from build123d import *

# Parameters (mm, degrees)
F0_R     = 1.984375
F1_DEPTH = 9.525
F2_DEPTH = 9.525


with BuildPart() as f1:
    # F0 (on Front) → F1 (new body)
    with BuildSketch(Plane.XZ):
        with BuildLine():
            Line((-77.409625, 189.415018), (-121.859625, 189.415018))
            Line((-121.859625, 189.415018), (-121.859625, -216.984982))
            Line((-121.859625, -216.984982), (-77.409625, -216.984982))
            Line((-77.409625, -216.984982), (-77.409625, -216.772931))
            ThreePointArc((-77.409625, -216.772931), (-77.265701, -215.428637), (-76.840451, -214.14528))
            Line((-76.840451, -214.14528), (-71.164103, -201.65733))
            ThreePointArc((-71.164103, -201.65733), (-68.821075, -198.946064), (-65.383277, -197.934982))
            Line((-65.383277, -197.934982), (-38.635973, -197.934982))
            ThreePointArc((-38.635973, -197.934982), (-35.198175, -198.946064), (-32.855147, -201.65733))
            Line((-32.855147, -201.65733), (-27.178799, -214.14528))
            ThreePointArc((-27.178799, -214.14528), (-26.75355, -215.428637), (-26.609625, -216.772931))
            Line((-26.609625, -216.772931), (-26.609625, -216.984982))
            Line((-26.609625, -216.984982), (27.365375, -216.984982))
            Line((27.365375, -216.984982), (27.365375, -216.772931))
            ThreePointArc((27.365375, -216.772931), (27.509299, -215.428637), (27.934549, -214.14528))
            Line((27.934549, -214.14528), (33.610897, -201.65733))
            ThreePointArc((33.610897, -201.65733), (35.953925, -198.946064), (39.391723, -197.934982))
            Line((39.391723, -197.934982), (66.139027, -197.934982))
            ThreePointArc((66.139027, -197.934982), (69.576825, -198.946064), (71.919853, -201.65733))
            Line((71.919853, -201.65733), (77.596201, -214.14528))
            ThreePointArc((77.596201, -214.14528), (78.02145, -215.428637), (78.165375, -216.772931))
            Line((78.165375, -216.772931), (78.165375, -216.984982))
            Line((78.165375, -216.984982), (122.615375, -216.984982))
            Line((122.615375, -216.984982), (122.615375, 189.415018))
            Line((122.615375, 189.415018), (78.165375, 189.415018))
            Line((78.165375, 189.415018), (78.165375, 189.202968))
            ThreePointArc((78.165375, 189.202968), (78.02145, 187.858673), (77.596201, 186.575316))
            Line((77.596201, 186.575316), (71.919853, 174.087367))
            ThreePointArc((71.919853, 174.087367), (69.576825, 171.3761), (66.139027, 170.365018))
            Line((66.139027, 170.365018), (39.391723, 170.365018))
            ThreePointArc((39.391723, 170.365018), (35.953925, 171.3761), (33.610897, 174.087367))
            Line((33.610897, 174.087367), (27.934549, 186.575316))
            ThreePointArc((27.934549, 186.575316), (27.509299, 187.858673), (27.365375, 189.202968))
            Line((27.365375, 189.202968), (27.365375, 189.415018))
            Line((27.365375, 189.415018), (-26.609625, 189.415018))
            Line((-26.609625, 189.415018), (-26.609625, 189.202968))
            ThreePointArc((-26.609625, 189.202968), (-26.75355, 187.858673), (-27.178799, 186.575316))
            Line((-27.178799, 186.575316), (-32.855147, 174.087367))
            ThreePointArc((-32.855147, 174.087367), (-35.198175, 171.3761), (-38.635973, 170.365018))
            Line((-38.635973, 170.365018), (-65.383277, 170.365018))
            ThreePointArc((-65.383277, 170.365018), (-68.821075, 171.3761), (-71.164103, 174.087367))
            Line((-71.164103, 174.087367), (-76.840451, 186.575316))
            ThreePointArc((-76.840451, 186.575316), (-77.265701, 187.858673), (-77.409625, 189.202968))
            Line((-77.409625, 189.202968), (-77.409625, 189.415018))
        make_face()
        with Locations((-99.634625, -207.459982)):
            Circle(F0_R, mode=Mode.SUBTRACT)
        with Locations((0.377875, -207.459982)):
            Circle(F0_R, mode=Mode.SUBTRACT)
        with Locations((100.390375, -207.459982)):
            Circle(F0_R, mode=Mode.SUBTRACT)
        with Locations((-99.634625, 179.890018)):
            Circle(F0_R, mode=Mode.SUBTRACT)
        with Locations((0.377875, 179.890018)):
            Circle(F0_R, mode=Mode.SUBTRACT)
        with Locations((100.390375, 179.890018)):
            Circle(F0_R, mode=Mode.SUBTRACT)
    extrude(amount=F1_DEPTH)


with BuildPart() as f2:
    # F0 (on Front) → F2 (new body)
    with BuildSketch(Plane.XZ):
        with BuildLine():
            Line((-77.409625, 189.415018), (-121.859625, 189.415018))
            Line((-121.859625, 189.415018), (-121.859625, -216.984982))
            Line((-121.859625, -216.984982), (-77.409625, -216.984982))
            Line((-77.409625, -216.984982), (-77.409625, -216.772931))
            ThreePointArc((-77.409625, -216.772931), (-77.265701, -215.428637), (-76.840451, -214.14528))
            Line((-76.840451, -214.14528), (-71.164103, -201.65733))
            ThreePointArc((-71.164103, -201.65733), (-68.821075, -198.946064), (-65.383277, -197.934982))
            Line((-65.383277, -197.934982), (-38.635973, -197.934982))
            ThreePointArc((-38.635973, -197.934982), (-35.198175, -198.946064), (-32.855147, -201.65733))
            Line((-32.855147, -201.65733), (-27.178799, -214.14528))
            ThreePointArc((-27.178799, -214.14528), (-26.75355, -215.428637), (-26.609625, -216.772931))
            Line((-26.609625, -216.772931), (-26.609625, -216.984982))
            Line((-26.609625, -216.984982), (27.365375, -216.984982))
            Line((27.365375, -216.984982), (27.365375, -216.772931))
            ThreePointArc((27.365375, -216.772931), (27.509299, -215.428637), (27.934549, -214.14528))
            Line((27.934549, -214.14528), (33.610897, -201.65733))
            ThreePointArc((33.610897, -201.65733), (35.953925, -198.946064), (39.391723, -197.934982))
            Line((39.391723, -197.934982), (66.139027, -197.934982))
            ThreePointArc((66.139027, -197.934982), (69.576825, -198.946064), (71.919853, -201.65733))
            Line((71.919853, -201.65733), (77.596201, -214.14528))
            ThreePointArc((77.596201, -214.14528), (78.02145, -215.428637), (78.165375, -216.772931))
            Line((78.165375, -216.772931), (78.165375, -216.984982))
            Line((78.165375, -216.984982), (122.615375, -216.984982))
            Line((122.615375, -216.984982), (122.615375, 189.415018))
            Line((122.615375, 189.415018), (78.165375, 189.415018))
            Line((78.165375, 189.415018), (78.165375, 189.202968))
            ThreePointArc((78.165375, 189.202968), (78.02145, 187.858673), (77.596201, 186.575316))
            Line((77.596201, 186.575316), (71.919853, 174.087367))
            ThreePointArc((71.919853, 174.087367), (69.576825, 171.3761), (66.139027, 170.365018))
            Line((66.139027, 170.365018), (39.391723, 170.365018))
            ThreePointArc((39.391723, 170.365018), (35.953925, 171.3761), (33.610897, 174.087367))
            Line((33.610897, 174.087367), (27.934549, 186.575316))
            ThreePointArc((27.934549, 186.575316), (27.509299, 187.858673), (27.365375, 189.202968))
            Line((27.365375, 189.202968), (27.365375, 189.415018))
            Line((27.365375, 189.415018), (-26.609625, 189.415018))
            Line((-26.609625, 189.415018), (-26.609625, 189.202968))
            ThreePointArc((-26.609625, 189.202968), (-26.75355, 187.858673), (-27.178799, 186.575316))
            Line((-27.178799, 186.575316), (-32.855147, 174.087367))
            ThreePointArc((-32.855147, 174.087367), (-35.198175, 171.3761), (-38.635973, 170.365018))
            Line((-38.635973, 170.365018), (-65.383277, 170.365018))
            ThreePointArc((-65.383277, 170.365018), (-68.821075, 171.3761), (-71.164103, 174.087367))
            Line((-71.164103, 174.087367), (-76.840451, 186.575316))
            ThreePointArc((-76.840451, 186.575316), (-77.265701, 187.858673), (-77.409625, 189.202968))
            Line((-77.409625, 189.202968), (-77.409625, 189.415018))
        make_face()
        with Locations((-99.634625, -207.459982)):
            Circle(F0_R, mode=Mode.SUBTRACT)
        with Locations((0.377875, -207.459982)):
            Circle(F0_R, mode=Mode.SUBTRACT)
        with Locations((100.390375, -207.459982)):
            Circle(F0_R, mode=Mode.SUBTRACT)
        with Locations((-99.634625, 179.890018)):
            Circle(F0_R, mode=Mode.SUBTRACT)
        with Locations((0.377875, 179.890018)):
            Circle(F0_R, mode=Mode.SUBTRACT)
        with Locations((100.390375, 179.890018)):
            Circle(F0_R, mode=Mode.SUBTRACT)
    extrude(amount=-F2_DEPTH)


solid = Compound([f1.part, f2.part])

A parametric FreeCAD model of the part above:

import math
import FreeCAD as App
import Part
import Sketcher

V = App.Vector
Q = App.Units.Quantity

doc = App.newDocument("Part")
body = doc.addObject("PartDesign::Body", "Body")

# Sketch on XZ plane
sketch1 = body.newObject("Sketcher::SketchObject", "Sketch")
sketch1.AttachmentSupport = (doc.getObject("XZ_Plane"), [""])
sketch1.MapMode = "FlatFace"
sketch1.addGeometry(Part.LineSegment(V(-77.409625, 189.415018, 0), V(-121.859625, 189.415018, 0)), False)
sketch1.addGeometry(Part.LineSegment(V(-121.859625, 189.415018, 0), V(-121.859625, -216.984982, 0)), False)
sketch1.addGeometry(Part.LineSegment(V(-121.859625, -216.984982, 0), V(-77.409625, -216.984982, 0)), False)
sketch1.addGeometry(Part.LineSegment(V(-77.409625, -216.984982, 0), V(-77.409625, -216.772931, 0)), False)
sketch1.addGeometry(Part.ArcOfCircle(Part.Circle(V(-71.059646, -216.772927, 0), V(0, 0, 1), 6.349979), math.radians(155.55598), math.radians(180.000039)), False)
sketch1.addGeometry(Part.LineSegment(V(-76.840451, -214.14528, 0), V(-71.164103, -201.65733, 0)), False)
sketch1.addGeometry(Part.ArcOfCircle(Part.Circle(V(-65.383277, -204.284983, 0), V(0, 0, 1), 6.350001), math.radians(90.000002), math.radians(155.556008)), False)
sketch1.addGeometry(Part.LineSegment(V(-65.383277, -197.934982, 0), V(-38.635973, -197.934982, 0)), False)
sketch1.addGeometry(Part.ArcOfCircle(Part.Circle(V(-38.635973, -204.284983, 0), V(0, 0, 1), 6.350001), math.radians(24.443992), math.radians(89.999998)), False)
sketch1.addGeometry(Part.LineSegment(V(-32.855147, -201.65733, 0), V(-27.178799, -214.14528, 0)), False)
sketch1.addGeometry(Part.ArcOfCircle(Part.Circle(V(-32.959646, -216.772936, 0), V(0, 0, 1), 6.350021), math.radians(0.000043), math.radians(24.443938)), False)
sketch1.addGeometry(Part.LineSegment(V(-26.609625, -216.772931, 0), V(-26.609625, -216.984982, 0)), False)
sketch1.addGeometry(Part.LineSegment(V(-26.609625, -216.984982, 0), V(27.365375, -216.984982, 0)), False)
sketch1.addGeometry(Part.LineSegment(V(27.365375, -216.984982, 0), V(27.365375, -216.772931, 0)), False)
sketch1.addGeometry(Part.ArcOfCircle(Part.Circle(V(33.715354, -216.772927, 0), V(0, 0, 1), 6.349979), math.radians(155.55598), math.radians(180.000039)), False)
sketch1.addGeometry(Part.LineSegment(V(27.934549, -214.14528, 0), V(33.610897, -201.65733, 0)), False)
sketch1.addGeometry(Part.ArcOfCircle(Part.Circle(V(39.391723, -204.284983, 0), V(0, 0, 1), 6.350001), math.radians(90.000002), math.radians(155.556008)), False)
sketch1.addGeometry(Part.LineSegment(V(39.391723, -197.934982, 0), V(66.139027, -197.934982, 0)), False)
sketch1.addGeometry(Part.ArcOfCircle(Part.Circle(V(66.139027, -204.284983, 0), V(0, 0, 1), 6.350001), math.radians(24.443992), math.radians(89.999998)), False)
sketch1.addGeometry(Part.LineSegment(V(71.919853, -201.65733, 0), V(77.596201, -214.14528, 0)), False)
sketch1.addGeometry(Part.ArcOfCircle(Part.Circle(V(71.815354, -216.772936, 0), V(0, 0, 1), 6.350021), math.radians(0.000043), math.radians(24.443938)), False)
sketch1.addGeometry(Part.LineSegment(V(78.165375, -216.772931, 0), V(78.165375, -216.984982, 0)), False)
sketch1.addGeometry(Part.LineSegment(V(78.165375, -216.984982, 0), V(122.615375, -216.984982, 0)), False)
sketch1.addGeometry(Part.LineSegment(V(122.615375, -216.984982, 0), V(122.615375, 189.415018, 0)), False)
sketch1.addGeometry(Part.LineSegment(V(122.615375, 189.415018, 0), V(78.165375, 189.415018, 0)), False)
sketch1.addGeometry(Part.LineSegment(V(78.165375, 189.415018, 0), V(78.165375, 189.202968, 0)), False)
sketch1.addGeometry(Part.ArcOfCircle(Part.Circle(V(71.815354, 189.202972, 0), V(0, 0, 1), 6.350021), math.radians(-24.443938), math.radians(-0.000034)), False)
sketch1.addGeometry(Part.LineSegment(V(77.596201, 186.575316, 0), V(71.919853, 174.087367, 0)), False)
sketch1.addGeometry(Part.ArcOfCircle(Part.Circle(V(66.139027, 176.715018, 0), V(0, 0, 1), 6.35), math.radians(-90.000002), math.radians(-24.443975)), False)
sketch1.addGeometry(Part.LineSegment(V(66.139027, 170.365018, 0), V(39.391723, 170.365018, 0)), False)
sketch1.addGeometry(Part.ArcOfCircle(Part.Circle(V(39.391723, 176.715018, 0), V(0, 0, 1), 6.35), math.radians(-155.556025), math.radians(-89.999998)), False)
sketch1.addGeometry(Part.LineSegment(V(33.610897, 174.087367, 0), V(27.934549, 186.575316, 0)), False)
sketch1.addGeometry(Part.ArcOfCircle(Part.Circle(V(33.715354, 189.202963, 0), V(0, 0, 1), 6.349979), math.radians(179.999952), math.radians(204.44402)), False)
sketch1.addGeometry(Part.LineSegment(V(27.365375, 189.202968, 0), V(27.365375, 189.415018, 0)), False)
sketch1.addGeometry(Part.LineSegment(V(27.365375, 189.415018, 0), V(-26.609625, 189.415018, 0)), False)
sketch1.addGeometry(Part.LineSegment(V(-26.609625, 189.415018, 0), V(-26.609625, 189.202968, 0)), False)
sketch1.addGeometry(Part.ArcOfCircle(Part.Circle(V(-32.959646, 189.202972, 0), V(0, 0, 1), 6.350021), math.radians(-24.443938), math.radians(-0.000034)), False)
sketch1.addGeometry(Part.LineSegment(V(-27.178799, 186.575316, 0), V(-32.855147, 174.087367, 0)), False)
sketch1.addGeometry(Part.ArcOfCircle(Part.Circle(V(-38.635973, 176.715018, 0), V(0, 0, 1), 6.35), math.radians(-90.000002), math.radians(-24.443975)), False)
sketch1.addGeometry(Part.LineSegment(V(-38.635973, 170.365018, 0), V(-65.383277, 170.365018, 0)), False)
sketch1.addGeometry(Part.ArcOfCircle(Part.Circle(V(-65.383277, 176.715018, 0), V(0, 0, 1), 6.35), math.radians(-155.556025), math.radians(-89.999998)), False)
sketch1.addGeometry(Part.LineSegment(V(-71.164103, 174.087367, 0), V(-76.840451, 186.575316, 0)), False)
sketch1.addGeometry(Part.ArcOfCircle(Part.Circle(V(-71.059646, 189.202963, 0), V(0, 0, 1), 6.349979), math.radians(179.999952), math.radians(204.44402)), False)
sketch1.addGeometry(Part.LineSegment(V(-77.409625, 189.202968, 0), V(-77.409625, 189.415018, 0)), False)
sketch1.addGeometry(Part.Circle(V(-99.634625, -207.459982, 0), V(0, 0, 1), 1.984375), False)
sketch1.addGeometry(Part.Circle(V(0.377875, -207.459982, 0), V(0, 0, 1), 1.984375), False)
sketch1.addGeometry(Part.Circle(V(100.390375, -207.459982, 0), V(0, 0, 1), 1.984375), False)
sketch1.addGeometry(Part.Circle(V(-99.634625, 179.890018, 0), V(0, 0, 1), 1.984375), False)
sketch1.addGeometry(Part.Circle(V(0.377875, 179.890018, 0), V(0, 0, 1), 1.984375), False)
sketch1.addGeometry(Part.Circle(V(100.390375, 179.890018, 0), V(0, 0, 1), 1.984375), False)
sketch1.addConstraint(Sketcher.Constraint("Coincident", 0, 2, 1, 1))
sketch1.addConstraint(Sketcher.Constraint("Coincident", 1, 2, 2, 1))
sketch1.addConstraint(Sketcher.Constraint("Coincident", 2, 2, 3, 1))
sketch1.addConstraint(Sketcher.Constraint("Coincident", 3, 2, 4, 2))
sketch1.addConstraint(Sketcher.Constraint("Coincident", 4, 1, 5, 1))
sketch1.addConstraint(Sketcher.Constraint("Coincident", 5, 2, 6, 2))
sketch1.addConstraint(Sketcher.Constraint("Coincident", 6, 1, 7, 1))
sketch1.addConstraint(Sketcher.Constraint("Coincident", 7, 2, 8, 2))
sketch1.addConstraint(Sketcher.Constraint("Coincident", 8, 1, 9, 1))
sketch1.addConstraint(Sketcher.Constraint("Coincident", 9, 2, 10, 2))
sketch1.addConstraint(Sketcher.Constraint("Coincident", 10, 1, 11, 1))
sketch1.addConstraint(Sketcher.Constraint("Coincident", 11, 2, 12, 1))
sketch1.addConstraint(Sketcher.Constraint("Coincident", 12, 2, 13, 1))
sketch1.addConstraint(Sketcher.Constraint("Coincident", 13, 2, 14, 2))
sketch1.addConstraint(Sketcher.Constraint("Coincident", 14, 1, 15, 1))
sketch1.addConstraint(Sketcher.Constraint("Coincident", 15, 2, 16, 2))
sketch1.addConstraint(Sketcher.Constraint("Coincident", 16, 1, 17, 1))
sketch1.addConstraint(Sketcher.Constraint("Coincident", 17, 2, 18, 2))
sketch1.addConstraint(Sketcher.Constraint("Coincident", 18, 1, 19, 1))
sketch1.addConstraint(Sketcher.Constraint("Coincident", 19, 2, 20, 2))
sketch1.addConstraint(Sketcher.Constraint("Coincident", 20, 1, 21, 1))
sketch1.addConstraint(Sketcher.Constraint("Coincident", 21, 2, 22, 1))
sketch1.addConstraint(Sketcher.Constraint("Coincident", 22, 2, 23, 1))
sketch1.addConstraint(Sketcher.Constraint("Coincident", 23, 2, 24, 1))
sketch1.addConstraint(Sketcher.Constraint("Coincident", 24, 2, 25, 1))
sketch1.addConstraint(Sketcher.Constraint("Coincident", 25, 2, 26, 2))
sketch1.addConstraint(Sketcher.Constraint("Coincident", 26, 1, 27, 1))
sketch1.addConstraint(Sketcher.Constraint("Coincident", 27, 2, 28, 2))
sketch1.addConstraint(Sketcher.Constraint("Coincident", 28, 1, 29, 1))
sketch1.addConstraint(Sketcher.Constraint("Coincident", 29, 2, 30, 2))
sketch1.addConstraint(Sketcher.Constraint("Coincident", 30, 1, 31, 1))
sketch1.addConstraint(Sketcher.Constraint("Coincident", 31, 2, 32, 2))
sketch1.addConstraint(Sketcher.Constraint("Coincident", 32, 1, 33, 1))
sketch1.addConstraint(Sketcher.Constraint("Coincident", 33, 2, 34, 1))
sketch1.addConstraint(Sketcher.Constraint("Coincident", 34, 2, 35, 1))
sketch1.addConstraint(Sketcher.Constraint("Coincident", 35, 2, 36, 2))
sketch1.addConstraint(Sketcher.Constraint("Coincident", 36, 1, 37, 1))
sketch1.addConstraint(Sketcher.Constraint("Coincident", 37, 2, 38, 2))
sketch1.addConstraint(Sketcher.Constraint("Coincident", 38, 1, 39, 1))
sketch1.addConstraint(Sketcher.Constraint("Coincident", 39, 2, 40, 2))
sketch1.addConstraint(Sketcher.Constraint("Coincident", 40, 1, 41, 1))
sketch1.addConstraint(Sketcher.Constraint("Coincident", 41, 2, 42, 2))
sketch1.addConstraint(Sketcher.Constraint("Coincident", 42, 1, 43, 1))
sketch1.addConstraint(Sketcher.Constraint("Coincident", 43, 2, 0, 1))
sketch1.addConstraint(Sketcher.Constraint("Horizontal", 0))
sketch1.addConstraint(Sketcher.Constraint("Vertical", 1))
sketch1.addConstraint(Sketcher.Constraint("Horizontal", 2))
sketch1.addConstraint(Sketcher.Constraint("Vertical", 3))
sketch1.addConstraint(Sketcher.Constraint("Horizontal", 7))
sketch1.addConstraint(Sketcher.Constraint("Vertical", 11))
sketch1.addConstraint(Sketcher.Constraint("Horizontal", 12))
sketch1.addConstraint(Sketcher.Constraint("Vertical", 13))
sketch1.addConstraint(Sketcher.Constraint("Horizontal", 17))
sketch1.addConstraint(Sketcher.Constraint("Vertical", 21))
sketch1.addConstraint(Sketcher.Constraint("Horizontal", 22))
sketch1.addConstraint(Sketcher.Constraint("Vertical", 23))
sketch1.addConstraint(Sketcher.Constraint("Horizontal", 24))
sketch1.addConstraint(Sketcher.Constraint("Vertical", 25))
sketch1.addConstraint(Sketcher.Constraint("Horizontal", 29))
sketch1.addConstraint(Sketcher.Constraint("Vertical", 33))
sketch1.addConstraint(Sketcher.Constraint("Horizontal", 34))
sketch1.addConstraint(Sketcher.Constraint("Vertical", 35))
sketch1.addConstraint(Sketcher.Constraint("Horizontal", 39))
sketch1.addConstraint(Sketcher.Constraint("Vertical", 43))
sketch1.addConstraint(Sketcher.Constraint("DistanceY", 1, 2, 1, 1, Q("16 in")))
sketch1.addConstraint(Sketcher.Constraint("DistanceY", 23, 1, 23, 2, Q("16 in")))
sketch1.addConstraint(Sketcher.Constraint("Radius", 6, Q("0.25 in")))
sketch1.addConstraint(Sketcher.Constraint("Radius", 8, Q("0.25 in")))
sketch1.addConstraint(Sketcher.Constraint("Radius", 16, Q("0.25 in")))
sketch1.addConstraint(Sketcher.Constraint("Radius", 18, Q("0.25 in")))
sketch1.addConstraint(Sketcher.Constraint("Radius", 28, Q("0.25 in")))
sketch1.addConstraint(Sketcher.Constraint("Radius", 30, Q("0.25 in")))
sketch1.addConstraint(Sketcher.Constraint("Radius", 38, Q("0.25 in")))
sketch1.addConstraint(Sketcher.Constraint("Radius", 40, Q("0.25 in")))
sketch1.addConstraint(Sketcher.Constraint("Diameter", 44, Q("0.15625 in")))
sketch1.addConstraint(Sketcher.Constraint("Diameter", 45, Q("0.15625 in")))
sketch1.addConstraint(Sketcher.Constraint("Diameter", 46, Q("0.15625 in")))
sketch1.addConstraint(Sketcher.Constraint("Diameter", 47, Q("0.15625 in")))
sketch1.addConstraint(Sketcher.Constraint("Diameter", 48, Q("0.15625 in")))
sketch1.addConstraint(Sketcher.Constraint("Diameter", 49, Q("0.15625 in")))
sketch1.addConstraint(Sketcher.Constraint("DistanceX", 0, 2, 0, 1, Q("1.75 in")))
sketch1.addConstraint(Sketcher.Constraint("DistanceX", 2, 1, 2, 2, Q("1.75 in")))
sketch1.addConstraint(Sketcher.Constraint("DistanceX", 22, 1, 22, 2, Q("1.75 in")))
sketch1.addConstraint(Sketcher.Constraint("DistanceX", 24, 2, 24, 1, Q("1.75 in")))
sketch1.addConstraint(Sketcher.Constraint("DistanceX", 12, 1, 12, 2, Q("2.125 in")))
sketch1.addConstraint(Sketcher.Constraint("DistanceX", 34, 2, 34, 1, Q("2.125 in")))
sketch1.addConstraint(Sketcher.Constraint("Radius", 4, 6.349979))
sketch1.addConstraint(Sketcher.Constraint("Radius", 10, 6.350021))
sketch1.addConstraint(Sketcher.Constraint("Radius", 14, 6.349979))
sketch1.addConstraint(Sketcher.Constraint("Radius", 20, 6.350021))
sketch1.addConstraint(Sketcher.Constraint("Radius", 26, 6.350021))
sketch1.addConstraint(Sketcher.Constraint("Radius", 32, 6.349979))
sketch1.addConstraint(Sketcher.Constraint("Radius", 36, 6.350021))
sketch1.addConstraint(Sketcher.Constraint("Radius", 42, 6.349979))
sketch1.addConstraint(Sketcher.Constraint("Distance", 5, 13.717501))
sketch1.addConstraint(Sketcher.Constraint("Distance", 9, 13.717501))
sketch1.addConstraint(Sketcher.Constraint("Distance", 15, 13.717501))
sketch1.addConstraint(Sketcher.Constraint("Distance", 19, 13.717501))
sketch1.addConstraint(Sketcher.Constraint("Distance", 27, 13.7175))
sketch1.addConstraint(Sketcher.Constraint("Distance", 31, 13.7175))
sketch1.addConstraint(Sketcher.Constraint("Distance", 37, 13.7175))
sketch1.addConstraint(Sketcher.Constraint("Distance", 41, 13.7175))
sketch1.addConstraint(Sketcher.Constraint("DistanceY", 3, 1, 3, 2, 0.212051))
sketch1.addConstraint(Sketcher.Constraint("DistanceY", 11, 2, 11, 1, 0.212051))
sketch1.addConstraint(Sketcher.Constraint("DistanceY", 13, 1, 13, 2, 0.212051))
sketch1.addConstraint(Sketcher.Constraint("DistanceY", 21, 2, 21, 1, 0.212051))
sketch1.addConstraint(Sketcher.Constraint("DistanceY", 25, 2, 25, 1, 0.21205))
sketch1.addConstraint(Sketcher.Constraint("DistanceY", 33, 1, 33, 2, 0.21205))
sketch1.addConstraint(Sketcher.Constraint("DistanceY", 35, 2, 35, 1, 0.21205))
sketch1.addConstraint(Sketcher.Constraint("DistanceY", 43, 1, 43, 2, 0.21205))
sketch1.addConstraint(Sketcher.Constraint("DistanceX", 9, 2, -1, 1, 27.178799))
sketch1.addConstraint(Sketcher.Constraint("DistanceX", -1, 1, 19, 2, 77.596201))
sketch1.addConstraint(Sketcher.Constraint("DistanceX", -1, 1, 26, 1, 77.596201))
sketch1.addConstraint(Sketcher.Constraint("DistanceX", 36, 1, -1, 1, 27.178799))
sketch1.addConstraint(Sketcher.Constraint("DistanceX", 7, 1, 7, 2, 26.747304))
sketch1.addConstraint(Sketcher.Constraint("DistanceX", 17, 1, 17, 2, 26.747304))
sketch1.addConstraint(Sketcher.Constraint("DistanceX", 29, 2, 29, 1, 26.747304))
sketch1.addConstraint(Sketcher.Constraint("DistanceX", 39, 2, 39, 1, 26.747304))
sketch1.addConstraint(Sketcher.Constraint("DistanceY", -1, 1, 26, 3, 189.202972))
sketch1.addConstraint(Sketcher.Constraint("DistanceY", -1, 1, 36, 3, 189.202972))
sketch1.addConstraint(Sketcher.Constraint("DistanceY", 44, 3, -1, 1, 207.459982))
sketch1.addConstraint(Sketcher.Constraint("DistanceY", 45, 3, -1, 1, 207.459982))
sketch1.addConstraint(Sketcher.Constraint("DistanceY", 46, 3, -1, 1, 207.459982))
sketch1.addConstraint(Sketcher.Constraint("DistanceY", -1, 1, 47, 3, 179.890018))
sketch1.addConstraint(Sketcher.Constraint("DistanceY", -1, 1, 48, 3, 179.890018))
sketch1.addConstraint(Sketcher.Constraint("DistanceY", -1, 1, 49, 3, 179.890018))
sketch1.addConstraint(Sketcher.Constraint("DistanceY", -1, 1, 0, 2, 189.415018))
sketch1.addConstraint(Sketcher.Constraint("DistanceX", 4, 1, -1, 1, 76.840451))
sketch1.addConstraint(Sketcher.Constraint("DistanceY", 4, 1, -1, 1, 214.14528))
sketch1.addConstraint(Sketcher.Constraint("DistanceY", 5, 2, -1, 1, 201.65733))
sketch1.addConstraint(Sketcher.Constraint("DistanceY", 6, 1, -1, 1, 197.934982))
sketch1.addConstraint(Sketcher.Constraint("DistanceY", 8, 1, -1, 1, 201.65733))
sketch1.addConstraint(Sketcher.Constraint("DistanceY", 9, 2, -1, 1, 214.14528))
sketch1.addConstraint(Sketcher.Constraint("DistanceY", 10, 1, -1, 1, 216.772931))
sketch1.addConstraint(Sketcher.Constraint("DistanceX", -1, 1, 14, 1, 27.934549))
sketch1.addConstraint(Sketcher.Constraint("DistanceY", 14, 1, -1, 1, 214.14528))
sketch1.addConstraint(Sketcher.Constraint("DistanceY", 15, 2, -1, 1, 201.65733))
sketch1.addConstraint(Sketcher.Constraint("DistanceY", 16, 1, -1, 1, 197.934982))
sketch1.addConstraint(Sketcher.Constraint("DistanceY", 18, 1, -1, 1, 201.65733))
sketch1.addConstraint(Sketcher.Constraint("DistanceY", 19, 2, -1, 1, 214.14528))
sketch1.addConstraint(Sketcher.Constraint("DistanceY", 20, 1, -1, 1, 216.772931))
sketch1.addConstraint(Sketcher.Constraint("DistanceY", -1, 1, 28, 1, 170.365018))
sketch1.addConstraint(Sketcher.Constraint("DistanceX", -1, 1, 31, 2, 27.934549))
sketch1.addConstraint(Sketcher.Constraint("DistanceY", -1, 1, 32, 1, 189.202968))
sketch1.addConstraint(Sketcher.Constraint("DistanceY", -1, 1, 38, 1, 170.365018))
sketch1.addConstraint(Sketcher.Constraint("DistanceX", 41, 2, -1, 1, 76.840451))
sketch1.addConstraint(Sketcher.Constraint("DistanceX", 4, 3, -1, 1, 71.059646))
sketch1.addConstraint(Sketcher.Constraint("DistanceX", 10, 3, -1, 1, 32.959646))
sketch1.addConstraint(Sketcher.Constraint("DistanceX", -1, 1, 20, 3, 71.815354))
sketch1.addConstraint(Sketcher.Constraint("DistanceX", -1, 1, 28, 3, 66.139027))
sketch1.addConstraint(Sketcher.Constraint("DistanceX", -1, 1, 30, 3, 39.391723))
sketch1.addConstraint(Sketcher.Constraint("DistanceX", -1, 1, 32, 3, 33.715354))
sketch1.addConstraint(Sketcher.Constraint("DistanceY", -1, 1, 32, 3, 189.202963))
sketch1.addConstraint(Sketcher.Constraint("DistanceX", 38, 3, -1, 1, 38.635973))
sketch1.addConstraint(Sketcher.Constraint("DistanceX", 40, 3, -1, 1, 65.383277))
sketch1.addConstraint(Sketcher.Constraint("DistanceY", -1, 1, 42, 3, 189.202963))
sketch1.addConstraint(Sketcher.Constraint("DistanceX", 44, 3, -1, 1, 99.634625))
sketch1.addConstraint(Sketcher.Constraint("DistanceX", -1, 1, 45, 3, 0.377875))
sketch1.addConstraint(Sketcher.Constraint("DistanceX", -1, 1, 46, 3, 100.390375))
sketch1.addConstraint(Sketcher.Constraint("DistanceX", 47, 3, -1, 1, 99.634625))
sketch1.addConstraint(Sketcher.Constraint("DistanceX", -1, 1, 48, 3, 0.377875))
sketch1.addConstraint(Sketcher.Constraint("DistanceX", -1, 1, 49, 3, 100.390375))
sketch1.addConstraint(Sketcher.Constraint("DistanceX", 6, 1, -1, 1, 65.383277))
sketch1.addConstraint(Sketcher.Constraint("DistanceX", -1, 1, 16, 1, 39.391723))
sketch1.addConstraint(Sketcher.Constraint("DistanceX", -1, 1, 28, 1, 66.139027))
sketch1.addConstraint(Sketcher.Constraint("DistanceX", 38, 1, -1, 1, 38.635973))
pad1 = body.newObject("PartDesign::Pad", "Pad")
pad1.Profile = sketch1
pad1.Length = Q("0.375 in")
body2 = doc.addObject("PartDesign::Body", "Body001")

# Sketch on XZ plane
sketch2 = body2.newObject("Sketcher::SketchObject", "Sketch001")
sketch2.AttachmentSupport = (doc.getObject("XZ_Plane001"), [""])
sketch2.MapMode = "FlatFace"
sketch2.addGeometry(Part.LineSegment(V(-77.409625, 189.415018, 0), V(-121.859625, 189.415018, 0)), False)
sketch2.addGeometry(Part.LineSegment(V(-121.859625, 189.415018, 0), V(-121.859625, -216.984982, 0)), False)
sketch2.addGeometry(Part.LineSegment(V(-121.859625, -216.984982, 0), V(-77.409625, -216.984982, 0)), False)
sketch2.addGeometry(Part.LineSegment(V(-77.409625, -216.984982, 0), V(-77.409625, -216.772931, 0)), False)
sketch2.addGeometry(Part.ArcOfCircle(Part.Circle(V(-71.059646, -216.772927, 0), V(0, 0, 1), 6.349979), math.radians(155.55598), math.radians(180.000039)), False)
sketch2.addGeometry(Part.LineSegment(V(-76.840451, -214.14528, 0), V(-71.164103, -201.65733, 0)), False)
sketch2.addGeometry(Part.ArcOfCircle(Part.Circle(V(-65.383277, -204.284983, 0), V(0, 0, 1), 6.350001), math.radians(90.000002), math.radians(155.556008)), False)
sketch2.addGeometry(Part.LineSegment(V(-65.383277, -197.934982, 0), V(-38.635973, -197.934982, 0)), False)
sketch2.addGeometry(Part.ArcOfCircle(Part.Circle(V(-38.635973, -204.284983, 0), V(0, 0, 1), 6.350001), math.radians(24.443992), math.radians(89.999998)), False)
sketch2.addGeometry(Part.LineSegment(V(-32.855147, -201.65733, 0), V(-27.178799, -214.14528, 0)), False)
sketch2.addGeometry(Part.ArcOfCircle(Part.Circle(V(-32.959646, -216.772936, 0), V(0, 0, 1), 6.350021), math.radians(0.000043), math.radians(24.443938)), False)
sketch2.addGeometry(Part.LineSegment(V(-26.609625, -216.772931, 0), V(-26.609625, -216.984982, 0)), False)
sketch2.addGeometry(Part.LineSegment(V(-26.609625, -216.984982, 0), V(27.365375, -216.984982, 0)), False)
sketch2.addGeometry(Part.LineSegment(V(27.365375, -216.984982, 0), V(27.365375, -216.772931, 0)), False)
sketch2.addGeometry(Part.ArcOfCircle(Part.Circle(V(33.715354, -216.772927, 0), V(0, 0, 1), 6.349979), math.radians(155.55598), math.radians(180.000039)), False)
sketch2.addGeometry(Part.LineSegment(V(27.934549, -214.14528, 0), V(33.610897, -201.65733, 0)), False)
sketch2.addGeometry(Part.ArcOfCircle(Part.Circle(V(39.391723, -204.284983, 0), V(0, 0, 1), 6.350001), math.radians(90.000002), math.radians(155.556008)), False)
sketch2.addGeometry(Part.LineSegment(V(39.391723, -197.934982, 0), V(66.139027, -197.934982, 0)), False)
sketch2.addGeometry(Part.ArcOfCircle(Part.Circle(V(66.139027, -204.284983, 0), V(0, 0, 1), 6.350001), math.radians(24.443992), math.radians(89.999998)), False)
sketch2.addGeometry(Part.LineSegment(V(71.919853, -201.65733, 0), V(77.596201, -214.14528, 0)), False)
sketch2.addGeometry(Part.ArcOfCircle(Part.Circle(V(71.815354, -216.772936, 0), V(0, 0, 1), 6.350021), math.radians(0.000043), math.radians(24.443938)), False)
sketch2.addGeometry(Part.LineSegment(V(78.165375, -216.772931, 0), V(78.165375, -216.984982, 0)), False)
sketch2.addGeometry(Part.LineSegment(V(78.165375, -216.984982, 0), V(122.615375, -216.984982, 0)), False)
sketch2.addGeometry(Part.LineSegment(V(122.615375, -216.984982, 0), V(122.615375, 189.415018, 0)), False)
sketch2.addGeometry(Part.LineSegment(V(122.615375, 189.415018, 0), V(78.165375, 189.415018, 0)), False)
sketch2.addGeometry(Part.LineSegment(V(78.165375, 189.415018, 0), V(78.165375, 189.202968, 0)), False)
sketch2.addGeometry(Part.ArcOfCircle(Part.Circle(V(71.815354, 189.202972, 0), V(0, 0, 1), 6.350021), math.radians(-24.443938), math.radians(-0.000034)), False)
sketch2.addGeometry(Part.LineSegment(V(77.596201, 186.575316, 0), V(71.919853, 174.087367, 0)), False)
sketch2.addGeometry(Part.ArcOfCircle(Part.Circle(V(66.139027, 176.715018, 0), V(0, 0, 1), 6.35), math.radians(-90.000002), math.radians(-24.443975)), False)
sketch2.addGeometry(Part.LineSegment(V(66.139027, 170.365018, 0), V(39.391723, 170.365018, 0)), False)
sketch2.addGeometry(Part.ArcOfCircle(Part.Circle(V(39.391723, 176.715018, 0), V(0, 0, 1), 6.35), math.radians(-155.556025), math.radians(-89.999998)), False)
sketch2.addGeometry(Part.LineSegment(V(33.610897, 174.087367, 0), V(27.934549, 186.575316, 0)), False)
sketch2.addGeometry(Part.ArcOfCircle(Part.Circle(V(33.715354, 189.202963, 0), V(0, 0, 1), 6.349979), math.radians(179.999952), math.radians(204.44402)), False)
sketch2.addGeometry(Part.LineSegment(V(27.365375, 189.202968, 0), V(27.365375, 189.415018, 0)), False)
sketch2.addGeometry(Part.LineSegment(V(27.365375, 189.415018, 0), V(-26.609625, 189.415018, 0)), False)
sketch2.addGeometry(Part.LineSegment(V(-26.609625, 189.415018, 0), V(-26.609625, 189.202968, 0)), False)
sketch2.addGeometry(Part.ArcOfCircle(Part.Circle(V(-32.959646, 189.202972, 0), V(0, 0, 1), 6.350021), math.radians(-24.443938), math.radians(-0.000034)), False)
sketch2.addGeometry(Part.LineSegment(V(-27.178799, 186.575316, 0), V(-32.855147, 174.087367, 0)), False)
sketch2.addGeometry(Part.ArcOfCircle(Part.Circle(V(-38.635973, 176.715018, 0), V(0, 0, 1), 6.35), math.radians(-90.000002), math.radians(-24.443975)), False)
sketch2.addGeometry(Part.LineSegment(V(-38.635973, 170.365018, 0), V(-65.383277, 170.365018, 0)), False)
sketch2.addGeometry(Part.ArcOfCircle(Part.Circle(V(-65.383277, 176.715018, 0), V(0, 0, 1), 6.35), math.radians(-155.556025), math.radians(-89.999998)), False)
sketch2.addGeometry(Part.LineSegment(V(-71.164103, 174.087367, 0), V(-76.840451, 186.575316, 0)), False)
sketch2.addGeometry(Part.ArcOfCircle(Part.Circle(V(-71.059646, 189.202963, 0), V(0, 0, 1), 6.349979), math.radians(179.999952), math.radians(204.44402)), False)
sketch2.addGeometry(Part.LineSegment(V(-77.409625, 189.202968, 0), V(-77.409625, 189.415018, 0)), False)
sketch2.addGeometry(Part.Circle(V(-99.634625, -207.459982, 0), V(0, 0, 1), 1.984375), False)
sketch2.addGeometry(Part.Circle(V(0.377875, -207.459982, 0), V(0, 0, 1), 1.984375), False)
sketch2.addGeometry(Part.Circle(V(100.390375, -207.459982, 0), V(0, 0, 1), 1.984375), False)
sketch2.addGeometry(Part.Circle(V(-99.634625, 179.890018, 0), V(0, 0, 1), 1.984375), False)
sketch2.addGeometry(Part.Circle(V(0.377875, 179.890018, 0), V(0, 0, 1), 1.984375), False)
sketch2.addGeometry(Part.Circle(V(100.390375, 179.890018, 0), V(0, 0, 1), 1.984375), False)
sketch2.addConstraint(Sketcher.Constraint("Coincident", 0, 2, 1, 1))
sketch2.addConstraint(Sketcher.Constraint("Coincident", 1, 2, 2, 1))
sketch2.addConstraint(Sketcher.Constraint("Coincident", 2, 2, 3, 1))
sketch2.addConstraint(Sketcher.Constraint("Coincident", 3, 2, 4, 2))
sketch2.addConstraint(Sketcher.Constraint("Coincident", 4, 1, 5, 1))
sketch2.addConstraint(Sketcher.Constraint("Coincident", 5, 2, 6, 2))
sketch2.addConstraint(Sketcher.Constraint("Coincident", 6, 1, 7, 1))
sketch2.addConstraint(Sketcher.Constraint("Coincident", 7, 2, 8, 2))
sketch2.addConstraint(Sketcher.Constraint("Coincident", 8, 1, 9, 1))
sketch2.addConstraint(Sketcher.Constraint("Coincident", 9, 2, 10, 2))
sketch2.addConstraint(Sketcher.Constraint("Coincident", 10, 1, 11, 1))
sketch2.addConstraint(Sketcher.Constraint("Coincident", 11, 2, 12, 1))
sketch2.addConstraint(Sketcher.Constraint("Coincident", 12, 2, 13, 1))
sketch2.addConstraint(Sketcher.Constraint("Coincident", 13, 2, 14, 2))
sketch2.addConstraint(Sketcher.Constraint("Coincident", 14, 1, 15, 1))
sketch2.addConstraint(Sketcher.Constraint("Coincident", 15, 2, 16, 2))
sketch2.addConstraint(Sketcher.Constraint("Coincident", 16, 1, 17, 1))
sketch2.addConstraint(Sketcher.Constraint("Coincident", 17, 2, 18, 2))
sketch2.addConstraint(Sketcher.Constraint("Coincident", 18, 1, 19, 1))
sketch2.addConstraint(Sketcher.Constraint("Coincident", 19, 2, 20, 2))
sketch2.addConstraint(Sketcher.Constraint("Coincident", 20, 1, 21, 1))
sketch2.addConstraint(Sketcher.Constraint("Coincident", 21, 2, 22, 1))
sketch2.addConstraint(Sketcher.Constraint("Coincident", 22, 2, 23, 1))
sketch2.addConstraint(Sketcher.Constraint("Coincident", 23, 2, 24, 1))
sketch2.addConstraint(Sketcher.Constraint("Coincident", 24, 2, 25, 1))
sketch2.addConstraint(Sketcher.Constraint("Coincident", 25, 2, 26, 2))
sketch2.addConstraint(Sketcher.Constraint("Coincident", 26, 1, 27, 1))
sketch2.addConstraint(Sketcher.Constraint("Coincident", 27, 2, 28, 2))
sketch2.addConstraint(Sketcher.Constraint("Coincident", 28, 1, 29, 1))
sketch2.addConstraint(Sketcher.Constraint("Coincident", 29, 2, 30, 2))
sketch2.addConstraint(Sketcher.Constraint("Coincident", 30, 1, 31, 1))
sketch2.addConstraint(Sketcher.Constraint("Coincident", 31, 2, 32, 2))
sketch2.addConstraint(Sketcher.Constraint("Coincident", 32, 1, 33, 1))
sketch2.addConstraint(Sketcher.Constraint("Coincident", 33, 2, 34, 1))
sketch2.addConstraint(Sketcher.Constraint("Coincident", 34, 2, 35, 1))
sketch2.addConstraint(Sketcher.Constraint("Coincident", 35, 2, 36, 2))
sketch2.addConstraint(Sketcher.Constraint("Coincident", 36, 1, 37, 1))
sketch2.addConstraint(Sketcher.Constraint("Coincident", 37, 2, 38, 2))
sketch2.addConstraint(Sketcher.Constraint("Coincident", 38, 1, 39, 1))
sketch2.addConstraint(Sketcher.Constraint("Coincident", 39, 2, 40, 2))
sketch2.addConstraint(Sketcher.Constraint("Coincident", 40, 1, 41, 1))
sketch2.addConstraint(Sketcher.Constraint("Coincident", 41, 2, 42, 2))
sketch2.addConstraint(Sketcher.Constraint("Coincident", 42, 1, 43, 1))
sketch2.addConstraint(Sketcher.Constraint("Coincident", 43, 2, 0, 1))
sketch2.addConstraint(Sketcher.Constraint("Horizontal", 0))
sketch2.addConstraint(Sketcher.Constraint("Vertical", 1))
sketch2.addConstraint(Sketcher.Constraint("Horizontal", 2))
sketch2.addConstraint(Sketcher.Constraint("Vertical", 3))
sketch2.addConstraint(Sketcher.Constraint("Horizontal", 7))
sketch2.addConstraint(Sketcher.Constraint("Vertical", 11))
sketch2.addConstraint(Sketcher.Constraint("Horizontal", 12))
sketch2.addConstraint(Sketcher.Constraint("Vertical", 13))
sketch2.addConstraint(Sketcher.Constraint("Horizontal", 17))
sketch2.addConstraint(Sketcher.Constraint("Vertical", 21))
sketch2.addConstraint(Sketcher.Constraint("Horizontal", 22))
sketch2.addConstraint(Sketcher.Constraint("Vertical", 23))
sketch2.addConstraint(Sketcher.Constraint("Horizontal", 24))
sketch2.addConstraint(Sketcher.Constraint("Vertical", 25))
sketch2.addConstraint(Sketcher.Constraint("Horizontal", 29))
sketch2.addConstraint(Sketcher.Constraint("Vertical", 33))
sketch2.addConstraint(Sketcher.Constraint("Horizontal", 34))
sketch2.addConstraint(Sketcher.Constraint("Vertical", 35))
sketch2.addConstraint(Sketcher.Constraint("Horizontal", 39))
sketch2.addConstraint(Sketcher.Constraint("Vertical", 43))
sketch2.addConstraint(Sketcher.Constraint("DistanceY", 1, 2, 1, 1, Q("16 in")))
sketch2.addConstraint(Sketcher.Constraint("DistanceY", 23, 1, 23, 2, Q("16 in")))
sketch2.addConstraint(Sketcher.Constraint("Radius", 6, Q("0.25 in")))
sketch2.addConstraint(Sketcher.Constraint("Radius", 8, Q("0.25 in")))
sketch2.addConstraint(Sketcher.Constraint("Radius", 16, Q("0.25 in")))
sketch2.addConstraint(Sketcher.Constraint("Radius", 18, Q("0.25 in")))
sketch2.addConstraint(Sketcher.Constraint("Radius", 28, Q("0.25 in")))
sketch2.addConstraint(Sketcher.Constraint("Radius", 30, Q("0.25 in")))
sketch2.addConstraint(Sketcher.Constraint("Radius", 38, Q("0.25 in")))
sketch2.addConstraint(Sketcher.Constraint("Radius", 40, Q("0.25 in")))
sketch2.addConstraint(Sketcher.Constraint("Diameter", 44, Q("0.15625 in")))
sketch2.addConstraint(Sketcher.Constraint("Diameter", 45, Q("0.15625 in")))
sketch2.addConstraint(Sketcher.Constraint("Diameter", 46, Q("0.15625 in")))
sketch2.addConstraint(Sketcher.Constraint("Diameter", 47, Q("0.15625 in")))
sketch2.addConstraint(Sketcher.Constraint("Diameter", 48, Q("0.15625 in")))
sketch2.addConstraint(Sketcher.Constraint("Diameter", 49, Q("0.15625 in")))
sketch2.addConstraint(Sketcher.Constraint("DistanceX", 0, 2, 0, 1, Q("1.75 in")))
sketch2.addConstraint(Sketcher.Constraint("DistanceX", 2, 1, 2, 2, Q("1.75 in")))
sketch2.addConstraint(Sketcher.Constraint("DistanceX", 22, 1, 22, 2, Q("1.75 in")))
sketch2.addConstraint(Sketcher.Constraint("DistanceX", 24, 2, 24, 1, Q("1.75 in")))
sketch2.addConstraint(Sketcher.Constraint("DistanceX", 12, 1, 12, 2, Q("2.125 in")))
sketch2.addConstraint(Sketcher.Constraint("DistanceX", 34, 2, 34, 1, Q("2.125 in")))
sketch2.addConstraint(Sketcher.Constraint("Radius", 4, 6.349979))
sketch2.addConstraint(Sketcher.Constraint("Radius", 10, 6.350021))
sketch2.addConstraint(Sketcher.Constraint("Radius", 14, 6.349979))
sketch2.addConstraint(Sketcher.Constraint("Radius", 20, 6.350021))
sketch2.addConstraint(Sketcher.Constraint("Radius", 26, 6.350021))
sketch2.addConstraint(Sketcher.Constraint("Radius", 32, 6.349979))
sketch2.addConstraint(Sketcher.Constraint("Radius", 36, 6.350021))
sketch2.addConstraint(Sketcher.Constraint("Radius", 42, 6.349979))
sketch2.addConstraint(Sketcher.Constraint("Distance", 5, 13.717501))
sketch2.addConstraint(Sketcher.Constraint("Distance", 9, 13.717501))
sketch2.addConstraint(Sketcher.Constraint("Distance", 15, 13.717501))
sketch2.addConstraint(Sketcher.Constraint("Distance", 19, 13.717501))
sketch2.addConstraint(Sketcher.Constraint("Distance", 27, 13.7175))
sketch2.addConstraint(Sketcher.Constraint("Distance", 31, 13.7175))
sketch2.addConstraint(Sketcher.Constraint("Distance", 37, 13.7175))
sketch2.addConstraint(Sketcher.Constraint("Distance", 41, 13.7175))
sketch2.addConstraint(Sketcher.Constraint("DistanceY", 3, 1, 3, 2, 0.212051))
sketch2.addConstraint(Sketcher.Constraint("DistanceY", 11, 2, 11, 1, 0.212051))
sketch2.addConstraint(Sketcher.Constraint("DistanceY", 13, 1, 13, 2, 0.212051))
sketch2.addConstraint(Sketcher.Constraint("DistanceY", 21, 2, 21, 1, 0.212051))
sketch2.addConstraint(Sketcher.Constraint("DistanceY", 25, 2, 25, 1, 0.21205))
sketch2.addConstraint(Sketcher.Constraint("DistanceY", 33, 1, 33, 2, 0.21205))
sketch2.addConstraint(Sketcher.Constraint("DistanceY", 35, 2, 35, 1, 0.21205))
sketch2.addConstraint(Sketcher.Constraint("DistanceY", 43, 1, 43, 2, 0.21205))
sketch2.addConstraint(Sketcher.Constraint("DistanceX", 9, 2, -1, 1, 27.178799))
sketch2.addConstraint(Sketcher.Constraint("DistanceX", -1, 1, 19, 2, 77.596201))
sketch2.addConstraint(Sketcher.Constraint("DistanceX", -1, 1, 26, 1, 77.596201))
sketch2.addConstraint(Sketcher.Constraint("DistanceX", 36, 1, -1, 1, 27.178799))
sketch2.addConstraint(Sketcher.Constraint("DistanceX", 7, 1, 7, 2, 26.747304))
sketch2.addConstraint(Sketcher.Constraint("DistanceX", 17, 1, 17, 2, 26.747304))
sketch2.addConstraint(Sketcher.Constraint("DistanceX", 29, 2, 29, 1, 26.747304))
sketch2.addConstraint(Sketcher.Constraint("DistanceX", 39, 2, 39, 1, 26.747304))
sketch2.addConstraint(Sketcher.Constraint("DistanceY", -1, 1, 26, 3, 189.202972))
sketch2.addConstraint(Sketcher.Constraint("DistanceY", -1, 1, 36, 3, 189.202972))
sketch2.addConstraint(Sketcher.Constraint("DistanceY", 44, 3, -1, 1, 207.459982))
sketch2.addConstraint(Sketcher.Constraint("DistanceY", 45, 3, -1, 1, 207.459982))
sketch2.addConstraint(Sketcher.Constraint("DistanceY", 46, 3, -1, 1, 207.459982))
sketch2.addConstraint(Sketcher.Constraint("DistanceY", -1, 1, 47, 3, 179.890018))
sketch2.addConstraint(Sketcher.Constraint("DistanceY", -1, 1, 48, 3, 179.890018))
sketch2.addConstraint(Sketcher.Constraint("DistanceY", -1, 1, 49, 3, 179.890018))
sketch2.addConstraint(Sketcher.Constraint("DistanceY", -1, 1, 0, 2, 189.415018))
sketch2.addConstraint(Sketcher.Constraint("DistanceX", 4, 1, -1, 1, 76.840451))
sketch2.addConstraint(Sketcher.Constraint("DistanceY", 4, 1, -1, 1, 214.14528))
sketch2.addConstraint(Sketcher.Constraint("DistanceY", 5, 2, -1, 1, 201.65733))
sketch2.addConstraint(Sketcher.Constraint("DistanceY", 6, 1, -1, 1, 197.934982))
sketch2.addConstraint(Sketcher.Constraint("DistanceY", 8, 1, -1, 1, 201.65733))
sketch2.addConstraint(Sketcher.Constraint("DistanceY", 9, 2, -1, 1, 214.14528))
sketch2.addConstraint(Sketcher.Constraint("DistanceY", 10, 1, -1, 1, 216.772931))
sketch2.addConstraint(Sketcher.Constraint("DistanceX", -1, 1, 14, 1, 27.934549))
sketch2.addConstraint(Sketcher.Constraint("DistanceY", 14, 1, -1, 1, 214.14528))
sketch2.addConstraint(Sketcher.Constraint("DistanceY", 15, 2, -1, 1, 201.65733))
sketch2.addConstraint(Sketcher.Constraint("DistanceY", 16, 1, -1, 1, 197.934982))
sketch2.addConstraint(Sketcher.Constraint("DistanceY", 18, 1, -1, 1, 201.65733))
sketch2.addConstraint(Sketcher.Constraint("DistanceY", 19, 2, -1, 1, 214.14528))
sketch2.addConstraint(Sketcher.Constraint("DistanceY", 20, 1, -1, 1, 216.772931))
sketch2.addConstraint(Sketcher.Constraint("DistanceY", -1, 1, 28, 1, 170.365018))
sketch2.addConstraint(Sketcher.Constraint("DistanceX", -1, 1, 31, 2, 27.934549))
sketch2.addConstraint(Sketcher.Constraint("DistanceY", -1, 1, 32, 1, 189.202968))
sketch2.addConstraint(Sketcher.Constraint("DistanceY", -1, 1, 38, 1, 170.365018))
sketch2.addConstraint(Sketcher.Constraint("DistanceX", 41, 2, -1, 1, 76.840451))
sketch2.addConstraint(Sketcher.Constraint("DistanceX", 4, 3, -1, 1, 71.059646))
sketch2.addConstraint(Sketcher.Constraint("DistanceX", 10, 3, -1, 1, 32.959646))
sketch2.addConstraint(Sketcher.Constraint("DistanceX", -1, 1, 20, 3, 71.815354))
sketch2.addConstraint(Sketcher.Constraint("DistanceX", -1, 1, 28, 3, 66.139027))
sketch2.addConstraint(Sketcher.Constraint("DistanceX", -1, 1, 30, 3, 39.391723))
sketch2.addConstraint(Sketcher.Constraint("DistanceX", -1, 1, 32, 3, 33.715354))
sketch2.addConstraint(Sketcher.Constraint("DistanceY", -1, 1, 32, 3, 189.202963))
sketch2.addConstraint(Sketcher.Constraint("DistanceX", 38, 3, -1, 1, 38.635973))
sketch2.addConstraint(Sketcher.Constraint("DistanceX", 40, 3, -1, 1, 65.383277))
sketch2.addConstraint(Sketcher.Constraint("DistanceY", -1, 1, 42, 3, 189.202963))
sketch2.addConstraint(Sketcher.Constraint("DistanceX", 44, 3, -1, 1, 99.634625))
sketch2.addConstraint(Sketcher.Constraint("DistanceX", -1, 1, 45, 3, 0.377875))
sketch2.addConstraint(Sketcher.Constraint("DistanceX", -1, 1, 46, 3, 100.390375))
sketch2.addConstraint(Sketcher.Constraint("DistanceX", 47, 3, -1, 1, 99.634625))
sketch2.addConstraint(Sketcher.Constraint("DistanceX", -1, 1, 48, 3, 0.377875))
sketch2.addConstraint(Sketcher.Constraint("DistanceX", -1, 1, 49, 3, 100.390375))
sketch2.addConstraint(Sketcher.Constraint("DistanceX", 6, 1, -1, 1, 65.383277))
sketch2.addConstraint(Sketcher.Constraint("DistanceX", -1, 1, 16, 1, 39.391723))
sketch2.addConstraint(Sketcher.Constraint("DistanceX", -1, 1, 28, 1, 66.139027))
sketch2.addConstraint(Sketcher.Constraint("DistanceX", 38, 1, -1, 1, 38.635973))
pad2 = body2.newObject("PartDesign::Pad", "Pad001")
pad2.Profile = sketch2
pad2.Length = Q("0.375 in")
pad2.Reversed = True

doc.recompute()
